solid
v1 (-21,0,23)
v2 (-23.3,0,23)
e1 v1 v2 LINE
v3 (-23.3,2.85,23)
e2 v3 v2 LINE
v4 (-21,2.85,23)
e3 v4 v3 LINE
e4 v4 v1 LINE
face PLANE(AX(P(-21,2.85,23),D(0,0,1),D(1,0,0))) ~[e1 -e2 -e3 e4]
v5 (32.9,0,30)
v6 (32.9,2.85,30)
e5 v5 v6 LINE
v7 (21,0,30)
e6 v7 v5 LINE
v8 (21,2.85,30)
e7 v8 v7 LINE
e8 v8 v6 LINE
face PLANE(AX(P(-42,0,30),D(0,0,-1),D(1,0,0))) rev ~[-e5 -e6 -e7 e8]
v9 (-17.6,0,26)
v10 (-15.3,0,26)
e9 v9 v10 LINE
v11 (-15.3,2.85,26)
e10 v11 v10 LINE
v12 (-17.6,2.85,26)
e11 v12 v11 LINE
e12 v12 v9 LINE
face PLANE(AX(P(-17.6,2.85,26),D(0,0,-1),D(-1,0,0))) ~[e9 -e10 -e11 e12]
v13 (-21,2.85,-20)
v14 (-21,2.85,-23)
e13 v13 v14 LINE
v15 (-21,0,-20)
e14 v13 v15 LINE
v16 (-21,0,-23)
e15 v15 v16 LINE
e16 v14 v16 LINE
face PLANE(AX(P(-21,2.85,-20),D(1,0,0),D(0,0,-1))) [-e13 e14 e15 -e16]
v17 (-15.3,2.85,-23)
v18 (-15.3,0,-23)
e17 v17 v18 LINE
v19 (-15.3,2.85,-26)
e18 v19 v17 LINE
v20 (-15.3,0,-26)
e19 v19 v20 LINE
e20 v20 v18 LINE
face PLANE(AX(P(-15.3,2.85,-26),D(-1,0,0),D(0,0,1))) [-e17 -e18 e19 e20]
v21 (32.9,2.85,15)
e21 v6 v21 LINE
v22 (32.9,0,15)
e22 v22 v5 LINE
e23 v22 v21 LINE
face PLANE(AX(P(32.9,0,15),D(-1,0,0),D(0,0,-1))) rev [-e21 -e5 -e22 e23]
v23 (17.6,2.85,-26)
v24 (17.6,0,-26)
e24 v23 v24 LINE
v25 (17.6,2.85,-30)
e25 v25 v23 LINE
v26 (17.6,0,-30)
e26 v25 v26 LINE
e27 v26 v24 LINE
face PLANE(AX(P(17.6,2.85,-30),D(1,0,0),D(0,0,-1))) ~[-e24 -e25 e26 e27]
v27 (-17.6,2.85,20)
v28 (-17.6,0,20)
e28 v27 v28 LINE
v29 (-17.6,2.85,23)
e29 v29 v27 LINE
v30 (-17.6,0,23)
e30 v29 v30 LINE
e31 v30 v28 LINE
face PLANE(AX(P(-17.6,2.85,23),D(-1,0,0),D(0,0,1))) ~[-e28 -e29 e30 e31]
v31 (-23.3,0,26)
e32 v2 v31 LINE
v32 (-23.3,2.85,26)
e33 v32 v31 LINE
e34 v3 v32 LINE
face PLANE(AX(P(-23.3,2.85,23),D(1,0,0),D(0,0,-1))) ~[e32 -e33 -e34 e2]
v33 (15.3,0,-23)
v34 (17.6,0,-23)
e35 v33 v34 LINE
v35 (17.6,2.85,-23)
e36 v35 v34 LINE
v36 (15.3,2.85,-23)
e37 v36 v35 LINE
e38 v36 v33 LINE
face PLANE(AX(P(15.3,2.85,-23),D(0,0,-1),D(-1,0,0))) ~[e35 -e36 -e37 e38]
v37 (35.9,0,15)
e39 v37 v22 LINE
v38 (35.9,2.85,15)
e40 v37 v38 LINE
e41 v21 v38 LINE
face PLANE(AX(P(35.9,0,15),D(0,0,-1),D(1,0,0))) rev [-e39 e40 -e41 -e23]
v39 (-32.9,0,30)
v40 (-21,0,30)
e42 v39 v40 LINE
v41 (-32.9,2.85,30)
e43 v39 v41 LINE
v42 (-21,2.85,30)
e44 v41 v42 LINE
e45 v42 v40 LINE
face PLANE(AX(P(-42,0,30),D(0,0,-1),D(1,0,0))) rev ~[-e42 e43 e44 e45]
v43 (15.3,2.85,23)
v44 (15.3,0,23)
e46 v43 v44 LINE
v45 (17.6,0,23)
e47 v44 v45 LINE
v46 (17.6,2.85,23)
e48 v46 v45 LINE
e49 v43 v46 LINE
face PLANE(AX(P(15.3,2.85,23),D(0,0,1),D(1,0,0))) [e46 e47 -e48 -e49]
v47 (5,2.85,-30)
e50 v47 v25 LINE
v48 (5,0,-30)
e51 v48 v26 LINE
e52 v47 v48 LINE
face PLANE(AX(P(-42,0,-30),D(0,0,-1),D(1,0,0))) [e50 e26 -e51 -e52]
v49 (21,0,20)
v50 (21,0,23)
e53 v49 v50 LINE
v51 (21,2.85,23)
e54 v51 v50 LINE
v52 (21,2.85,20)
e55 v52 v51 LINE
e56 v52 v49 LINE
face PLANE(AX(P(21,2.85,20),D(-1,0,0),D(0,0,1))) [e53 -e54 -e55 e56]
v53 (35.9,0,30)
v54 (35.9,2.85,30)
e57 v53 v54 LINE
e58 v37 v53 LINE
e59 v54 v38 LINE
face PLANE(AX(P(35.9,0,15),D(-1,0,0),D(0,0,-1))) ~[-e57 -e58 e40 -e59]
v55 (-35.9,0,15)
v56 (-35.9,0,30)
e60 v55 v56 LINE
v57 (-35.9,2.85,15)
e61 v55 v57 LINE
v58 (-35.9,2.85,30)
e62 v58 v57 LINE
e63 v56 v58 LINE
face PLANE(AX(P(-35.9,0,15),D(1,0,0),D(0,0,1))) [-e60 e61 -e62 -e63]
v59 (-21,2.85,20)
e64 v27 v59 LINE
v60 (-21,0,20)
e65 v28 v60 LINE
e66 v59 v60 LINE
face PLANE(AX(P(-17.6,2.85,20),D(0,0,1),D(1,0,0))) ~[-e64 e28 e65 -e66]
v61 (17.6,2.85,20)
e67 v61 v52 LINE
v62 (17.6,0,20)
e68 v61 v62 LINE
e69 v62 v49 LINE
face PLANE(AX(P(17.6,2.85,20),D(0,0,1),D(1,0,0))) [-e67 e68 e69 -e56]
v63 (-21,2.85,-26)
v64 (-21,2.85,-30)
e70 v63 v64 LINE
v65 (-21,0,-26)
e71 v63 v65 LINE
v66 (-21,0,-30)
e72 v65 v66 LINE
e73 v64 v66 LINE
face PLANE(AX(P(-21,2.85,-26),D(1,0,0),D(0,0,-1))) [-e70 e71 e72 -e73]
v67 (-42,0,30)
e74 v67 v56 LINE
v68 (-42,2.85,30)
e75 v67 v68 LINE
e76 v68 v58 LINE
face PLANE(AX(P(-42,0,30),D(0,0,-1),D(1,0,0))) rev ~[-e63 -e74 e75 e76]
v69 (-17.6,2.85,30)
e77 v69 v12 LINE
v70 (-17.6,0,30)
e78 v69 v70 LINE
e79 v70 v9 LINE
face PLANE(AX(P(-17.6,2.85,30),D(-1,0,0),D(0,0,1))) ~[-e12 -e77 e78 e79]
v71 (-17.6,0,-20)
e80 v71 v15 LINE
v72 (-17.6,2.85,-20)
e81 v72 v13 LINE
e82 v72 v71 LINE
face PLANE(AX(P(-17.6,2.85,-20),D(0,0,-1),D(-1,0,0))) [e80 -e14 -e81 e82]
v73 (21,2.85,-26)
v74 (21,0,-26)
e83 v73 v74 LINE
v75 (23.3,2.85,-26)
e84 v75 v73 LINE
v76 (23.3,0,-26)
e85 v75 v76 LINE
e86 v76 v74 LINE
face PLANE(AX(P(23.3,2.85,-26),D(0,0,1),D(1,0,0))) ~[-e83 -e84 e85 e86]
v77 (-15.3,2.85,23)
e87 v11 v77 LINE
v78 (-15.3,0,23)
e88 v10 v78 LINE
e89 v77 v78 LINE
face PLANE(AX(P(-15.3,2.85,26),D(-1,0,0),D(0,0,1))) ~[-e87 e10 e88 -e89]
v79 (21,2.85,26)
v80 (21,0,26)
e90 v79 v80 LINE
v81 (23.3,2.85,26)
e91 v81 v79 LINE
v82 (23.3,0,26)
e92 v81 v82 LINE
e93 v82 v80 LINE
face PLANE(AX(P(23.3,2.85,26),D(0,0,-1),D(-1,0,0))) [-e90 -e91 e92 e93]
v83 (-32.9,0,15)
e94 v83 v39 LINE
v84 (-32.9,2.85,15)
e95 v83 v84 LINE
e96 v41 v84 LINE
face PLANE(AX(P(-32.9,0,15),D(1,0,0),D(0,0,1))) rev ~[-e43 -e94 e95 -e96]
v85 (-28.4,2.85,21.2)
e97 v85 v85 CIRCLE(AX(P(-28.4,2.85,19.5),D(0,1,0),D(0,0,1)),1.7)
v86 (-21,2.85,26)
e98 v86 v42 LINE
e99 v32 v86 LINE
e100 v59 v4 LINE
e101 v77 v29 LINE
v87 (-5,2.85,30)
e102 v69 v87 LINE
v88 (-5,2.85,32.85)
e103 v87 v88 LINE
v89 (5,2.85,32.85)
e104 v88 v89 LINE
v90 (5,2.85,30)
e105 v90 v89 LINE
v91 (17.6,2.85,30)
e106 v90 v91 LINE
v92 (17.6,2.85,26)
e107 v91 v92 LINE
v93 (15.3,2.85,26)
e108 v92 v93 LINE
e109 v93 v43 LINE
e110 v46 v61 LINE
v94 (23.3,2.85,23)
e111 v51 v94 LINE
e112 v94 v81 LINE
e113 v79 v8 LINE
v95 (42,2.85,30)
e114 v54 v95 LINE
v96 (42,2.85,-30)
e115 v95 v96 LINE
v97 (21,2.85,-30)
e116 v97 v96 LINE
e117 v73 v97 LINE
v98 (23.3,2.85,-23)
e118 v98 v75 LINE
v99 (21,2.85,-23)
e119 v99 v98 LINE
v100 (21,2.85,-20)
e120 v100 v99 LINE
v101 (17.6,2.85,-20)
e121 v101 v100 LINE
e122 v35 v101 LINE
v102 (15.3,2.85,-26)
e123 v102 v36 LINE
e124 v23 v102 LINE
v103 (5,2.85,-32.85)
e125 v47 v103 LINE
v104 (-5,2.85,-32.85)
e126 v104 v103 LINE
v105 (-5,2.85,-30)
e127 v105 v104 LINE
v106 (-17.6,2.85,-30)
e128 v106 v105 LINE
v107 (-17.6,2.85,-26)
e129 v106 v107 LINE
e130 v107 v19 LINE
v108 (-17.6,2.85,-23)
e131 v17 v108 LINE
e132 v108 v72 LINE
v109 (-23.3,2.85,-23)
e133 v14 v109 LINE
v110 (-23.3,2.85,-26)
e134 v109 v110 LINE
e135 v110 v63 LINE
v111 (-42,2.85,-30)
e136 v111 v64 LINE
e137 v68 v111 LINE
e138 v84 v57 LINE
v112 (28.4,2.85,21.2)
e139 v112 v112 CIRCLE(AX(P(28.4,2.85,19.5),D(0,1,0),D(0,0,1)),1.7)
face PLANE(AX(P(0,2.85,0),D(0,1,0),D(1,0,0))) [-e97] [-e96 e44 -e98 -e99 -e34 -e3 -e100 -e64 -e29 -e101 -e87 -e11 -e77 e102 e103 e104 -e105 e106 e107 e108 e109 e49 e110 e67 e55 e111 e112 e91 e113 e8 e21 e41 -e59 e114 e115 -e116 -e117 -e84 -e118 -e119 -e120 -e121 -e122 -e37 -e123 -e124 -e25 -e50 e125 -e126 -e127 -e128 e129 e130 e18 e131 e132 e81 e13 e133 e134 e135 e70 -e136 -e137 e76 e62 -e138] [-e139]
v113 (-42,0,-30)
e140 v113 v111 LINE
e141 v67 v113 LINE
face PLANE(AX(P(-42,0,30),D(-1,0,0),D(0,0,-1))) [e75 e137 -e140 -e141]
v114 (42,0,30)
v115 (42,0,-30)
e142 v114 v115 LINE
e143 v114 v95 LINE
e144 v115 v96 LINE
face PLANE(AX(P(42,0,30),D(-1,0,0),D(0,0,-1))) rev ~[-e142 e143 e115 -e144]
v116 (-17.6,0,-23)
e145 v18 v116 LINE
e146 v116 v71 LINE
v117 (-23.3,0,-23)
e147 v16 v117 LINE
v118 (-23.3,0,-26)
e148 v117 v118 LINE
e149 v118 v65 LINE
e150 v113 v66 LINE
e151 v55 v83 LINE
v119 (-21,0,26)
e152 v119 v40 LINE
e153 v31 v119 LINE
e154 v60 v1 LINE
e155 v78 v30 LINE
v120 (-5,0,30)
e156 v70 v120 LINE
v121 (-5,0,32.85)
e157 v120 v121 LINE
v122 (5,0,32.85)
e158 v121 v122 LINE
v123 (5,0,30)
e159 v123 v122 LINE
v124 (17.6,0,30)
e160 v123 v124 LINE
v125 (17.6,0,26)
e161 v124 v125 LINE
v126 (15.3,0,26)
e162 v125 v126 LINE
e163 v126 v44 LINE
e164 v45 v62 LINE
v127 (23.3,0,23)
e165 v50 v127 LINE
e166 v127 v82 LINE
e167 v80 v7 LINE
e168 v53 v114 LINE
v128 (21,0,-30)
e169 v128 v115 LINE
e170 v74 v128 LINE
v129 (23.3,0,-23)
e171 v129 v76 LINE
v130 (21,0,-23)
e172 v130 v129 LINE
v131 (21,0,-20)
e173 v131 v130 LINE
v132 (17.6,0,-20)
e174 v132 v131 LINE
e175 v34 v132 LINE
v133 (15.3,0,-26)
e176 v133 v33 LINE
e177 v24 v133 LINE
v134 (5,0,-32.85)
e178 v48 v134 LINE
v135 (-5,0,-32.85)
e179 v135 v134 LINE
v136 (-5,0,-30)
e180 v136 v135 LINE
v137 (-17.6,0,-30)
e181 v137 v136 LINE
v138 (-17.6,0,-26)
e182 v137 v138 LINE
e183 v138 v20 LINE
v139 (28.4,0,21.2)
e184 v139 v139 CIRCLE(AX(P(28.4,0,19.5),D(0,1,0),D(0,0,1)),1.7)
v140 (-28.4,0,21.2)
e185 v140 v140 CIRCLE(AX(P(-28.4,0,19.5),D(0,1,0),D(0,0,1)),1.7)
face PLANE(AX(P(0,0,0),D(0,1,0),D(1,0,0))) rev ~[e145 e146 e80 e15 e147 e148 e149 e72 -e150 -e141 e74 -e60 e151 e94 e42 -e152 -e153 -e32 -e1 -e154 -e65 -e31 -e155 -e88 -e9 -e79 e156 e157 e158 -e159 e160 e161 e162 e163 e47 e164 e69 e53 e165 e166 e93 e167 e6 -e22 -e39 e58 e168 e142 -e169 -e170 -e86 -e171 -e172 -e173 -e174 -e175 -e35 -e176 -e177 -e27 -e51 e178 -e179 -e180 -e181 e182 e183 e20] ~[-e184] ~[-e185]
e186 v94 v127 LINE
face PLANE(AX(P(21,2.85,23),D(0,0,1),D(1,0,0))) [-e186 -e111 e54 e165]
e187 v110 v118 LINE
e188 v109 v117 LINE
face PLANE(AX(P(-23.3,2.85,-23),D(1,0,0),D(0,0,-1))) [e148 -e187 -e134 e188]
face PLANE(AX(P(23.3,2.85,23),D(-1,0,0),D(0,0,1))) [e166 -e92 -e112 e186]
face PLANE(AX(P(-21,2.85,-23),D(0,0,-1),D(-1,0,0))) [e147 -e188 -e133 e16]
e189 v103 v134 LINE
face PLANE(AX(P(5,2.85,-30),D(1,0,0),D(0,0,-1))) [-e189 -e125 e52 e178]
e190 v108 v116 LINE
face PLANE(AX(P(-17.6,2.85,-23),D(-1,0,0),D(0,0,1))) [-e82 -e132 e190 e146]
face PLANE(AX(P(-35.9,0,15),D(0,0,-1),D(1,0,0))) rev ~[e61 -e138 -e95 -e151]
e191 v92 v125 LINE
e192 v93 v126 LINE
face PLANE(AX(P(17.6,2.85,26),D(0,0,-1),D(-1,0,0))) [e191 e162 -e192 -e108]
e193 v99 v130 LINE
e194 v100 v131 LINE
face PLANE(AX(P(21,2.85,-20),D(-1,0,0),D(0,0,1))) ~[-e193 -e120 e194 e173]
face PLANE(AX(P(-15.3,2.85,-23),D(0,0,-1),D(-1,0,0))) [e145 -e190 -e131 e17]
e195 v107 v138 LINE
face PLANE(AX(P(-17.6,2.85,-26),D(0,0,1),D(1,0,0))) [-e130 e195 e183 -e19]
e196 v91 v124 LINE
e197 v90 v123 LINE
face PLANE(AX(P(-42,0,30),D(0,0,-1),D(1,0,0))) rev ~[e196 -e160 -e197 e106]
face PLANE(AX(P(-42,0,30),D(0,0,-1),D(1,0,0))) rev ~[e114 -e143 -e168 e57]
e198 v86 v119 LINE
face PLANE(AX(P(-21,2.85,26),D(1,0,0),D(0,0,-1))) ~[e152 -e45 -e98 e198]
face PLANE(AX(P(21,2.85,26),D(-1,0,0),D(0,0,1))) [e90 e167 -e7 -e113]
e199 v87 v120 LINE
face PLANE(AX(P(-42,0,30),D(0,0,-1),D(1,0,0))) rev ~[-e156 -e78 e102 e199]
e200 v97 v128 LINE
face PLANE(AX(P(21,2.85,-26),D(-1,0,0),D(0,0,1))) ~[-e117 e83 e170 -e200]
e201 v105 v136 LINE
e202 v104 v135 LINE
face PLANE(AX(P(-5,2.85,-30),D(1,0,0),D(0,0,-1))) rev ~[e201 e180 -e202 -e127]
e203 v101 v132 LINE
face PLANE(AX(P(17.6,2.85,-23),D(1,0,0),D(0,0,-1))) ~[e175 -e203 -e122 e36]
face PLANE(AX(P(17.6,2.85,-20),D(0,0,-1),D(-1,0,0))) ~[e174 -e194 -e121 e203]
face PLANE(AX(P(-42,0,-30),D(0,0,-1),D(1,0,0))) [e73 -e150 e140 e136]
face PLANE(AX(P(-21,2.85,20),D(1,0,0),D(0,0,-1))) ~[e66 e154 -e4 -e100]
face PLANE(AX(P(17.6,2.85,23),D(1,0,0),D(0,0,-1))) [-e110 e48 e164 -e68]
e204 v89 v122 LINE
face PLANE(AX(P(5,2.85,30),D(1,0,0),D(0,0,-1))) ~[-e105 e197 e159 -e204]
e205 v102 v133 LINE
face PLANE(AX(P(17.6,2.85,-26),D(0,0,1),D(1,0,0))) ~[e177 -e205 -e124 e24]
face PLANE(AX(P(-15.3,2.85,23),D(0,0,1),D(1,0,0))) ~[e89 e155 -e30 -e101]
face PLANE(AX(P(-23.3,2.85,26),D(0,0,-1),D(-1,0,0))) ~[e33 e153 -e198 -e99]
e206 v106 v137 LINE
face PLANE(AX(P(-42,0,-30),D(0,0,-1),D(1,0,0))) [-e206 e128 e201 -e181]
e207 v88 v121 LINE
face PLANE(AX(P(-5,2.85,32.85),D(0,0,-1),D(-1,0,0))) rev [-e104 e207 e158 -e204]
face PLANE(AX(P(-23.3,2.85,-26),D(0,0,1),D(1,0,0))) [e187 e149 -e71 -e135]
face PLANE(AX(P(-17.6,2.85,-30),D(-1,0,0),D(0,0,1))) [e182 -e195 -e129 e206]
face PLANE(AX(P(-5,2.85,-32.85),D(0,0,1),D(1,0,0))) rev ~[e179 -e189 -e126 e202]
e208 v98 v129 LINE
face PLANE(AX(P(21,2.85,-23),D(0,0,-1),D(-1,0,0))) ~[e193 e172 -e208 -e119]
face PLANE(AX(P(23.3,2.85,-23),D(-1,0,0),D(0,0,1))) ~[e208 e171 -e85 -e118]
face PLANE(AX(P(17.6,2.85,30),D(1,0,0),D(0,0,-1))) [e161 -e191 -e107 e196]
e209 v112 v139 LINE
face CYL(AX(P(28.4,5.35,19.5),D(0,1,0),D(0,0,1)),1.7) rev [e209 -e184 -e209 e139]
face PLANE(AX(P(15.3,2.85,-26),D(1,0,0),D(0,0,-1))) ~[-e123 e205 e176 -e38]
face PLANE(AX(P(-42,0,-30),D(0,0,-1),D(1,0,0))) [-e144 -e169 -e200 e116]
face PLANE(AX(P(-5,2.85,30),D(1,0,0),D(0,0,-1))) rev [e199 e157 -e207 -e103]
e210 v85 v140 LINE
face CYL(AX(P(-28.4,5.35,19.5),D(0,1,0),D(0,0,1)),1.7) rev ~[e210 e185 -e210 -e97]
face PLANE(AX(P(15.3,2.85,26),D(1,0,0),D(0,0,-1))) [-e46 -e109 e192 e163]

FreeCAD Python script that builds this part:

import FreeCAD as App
import Part
import Sketcher
from FreeCAD import Vector


def add_polygon(sketch, points):
    """Adds a closed chain of lines whose ends are joined by coincident constraints."""
    first, n = sketch.GeometryCount, len(points)
    for a, b in zip(points, points[1:] + points[:1]):
        sketch.addGeometry(Part.LineSegment(App.Vector(*a, 0), App.Vector(*b, 0)), False)
    for i in range(n):
        sketch.addConstraint(Sketcher.Constraint("Coincident", first + i, 2, first + (i + 1) % n, 1))

doc = App.newDocument("Part")
params = doc.addObject("Spreadsheet::Sheet", "Params")
for row, (alias, value) in enumerate([
    ("sketch1_width", "84 mm"),
    ("sketch1_height", "60 mm"),
    ("pad1_length", "2.85 mm"),
    ("sketch2_width", "3 mm"),
    ("sketch2_height", "15 mm"),
    ("sketch3_height", "3 mm"),
    ("sketch3_height2", "4 mm"),
    ("sketch3_width", "2.3 mm"),
    ("sketch3_width2", "3.4 mm"),
    ("sketch4_width", "10 mm"),
    ("sketch4_height", "2.85 mm"),
    ("pad2_length", "2.85 mm"),
    ("sketch5_height", "3 mm"),
    ("sketch5_height2", "4 mm"),
    ("sketch5_width", "2.3 mm"),
    ("sketch5_width2", "3.4 mm"),
    ("sketch6_diameter", "3.4 mm"),
    ("pocket4_length", "6 mm"),
], start=1):
    params.set(f"A{row}", alias)
    params.set(f"B{row}", "=" + value)
    params.setAlias(f"B{row}", alias)

body = doc.addObject("PartDesign::Body", "Body")

# Sketch on XZ plane
sketch1 = body.newObject("Sketcher::SketchObject", "Sketch")
sketch1.AttachmentSupport = (doc.getObject("XZ_Plane"), [""])
sketch1.MapMode = "FlatFace"
add_polygon(sketch1, [(-42, -30), (-42, 30), (42, 30), (42, -30)])  # lines 0-3
sketch1.addConstraint([
    Sketcher.Constraint("Vertical", 0),
    Sketcher.Constraint("Horizontal", 1),
    Sketcher.Constraint("Vertical", 2),
    Sketcher.Constraint("Horizontal", 3),
    Sketcher.Constraint("Symmetric", 0, 2, 2, 2, -1, 1),
    Sketcher.Constraint("DistanceX", 1, 1, 1, 2, 84.0),
    Sketcher.Constraint("DistanceY", 0, 1, 0, 2, 60.0),
])
sketch1.setExpression("Constraints[9]", "Params.sketch1_width")
sketch1.setExpression("Constraints[10]", "Params.sketch1_height")
pad1 = body.newObject("PartDesign::Pad", "Pad")
pad1.Profile = sketch1
pad1.setExpression("Length", "Params.pad1_length")
pad1.Reversed = True

# Sketch on XZ plane
sketch2 = body.newObject("Sketcher::SketchObject", "Sketch001")
sketch2.AttachmentSupport = (doc.getObject("XZ_Plane"), [""])
sketch2.MapMode = "FlatFace"
add_polygon(sketch2, [(-35.9, 30), (-35.9, 15), (-32.9, 15), (-32.9, 30)])  # lines 0-3
sketch2.addConstraint([
    Sketcher.Constraint("Vertical", 0),
    Sketcher.Constraint("Horizontal", 1),
    Sketcher.Constraint("Vertical", 2),
    Sketcher.Constraint("Horizontal", 3),
    Sketcher.Constraint("DistanceX", 1, 1, 1, 2, 3.0),
    Sketcher.Constraint("DistanceY", 0, 2, 0, 1, 15.0),
    Sketcher.Constraint("DistanceY", -1, 1, 0, 2, 15.0),
    Sketcher.Constraint("DistanceX", 0, 2, -1, 1, 35.9),
])
sketch2.setExpression("Constraints[8]", "Params.sketch2_width")
sketch2.setExpression("Constraints[9]", "Params.sketch2_height")
pocket1 = body.newObject("PartDesign::Pocket", "Pocket")
pocket1.Profile = sketch2
pocket1.Type = "ThroughAll"
doc.recompute()

mirrored = body.newObject("PartDesign::Mirrored", "Mirrored")
mirrored.Originals = [pocket1]
mirrored.MirrorPlane = (doc.getObject("YZ_Plane"), [""])
body.Tip = mirrored

# Sketch on XZ plane
sketch3 = body.newObject("Sketcher::SketchObject", "Sketch002")
sketch3.AttachmentSupport = (doc.getObject("XZ_Plane"), [""])
sketch3.MapMode = "FlatFace"
sketch3.AttachmentOffset = App.Placement(Vector(0, 0, -2.85), App.Rotation())
add_polygon(sketch3, [(-21, -26), (-23.3, -26), (-23.3, -23), (-21, -23), (-21, -20), (-17.6, -20), (-17.6, -23), (-15.3, -23), (-15.3, -26), (-17.6, -26), (-17.6, -30), (-21, -30)])  # lines 0-11
sketch3.addConstraint([
    Sketcher.Constraint("Horizontal", 0),
    Sketcher.Constraint("Vertical", 1),
    Sketcher.Constraint("Horizontal", 2),
    Sketcher.Constraint("Vertical", 3),
    Sketcher.Constraint("Horizontal", 4),
    Sketcher.Constraint("Vertical", 5),
    Sketcher.Constraint("Horizontal", 6),
    Sketcher.Constraint("Vertical", 7),
    Sketcher.Constraint("Horizontal", 8),
    Sketcher.Constraint("Vertical", 9),
    Sketcher.Constraint("Horizontal", 10),
    Sketcher.Constraint("Vertical", 11),
    Sketcher.Constraint("Horizontal", 2, 2, 5, 2),
    Sketcher.Constraint("Horizontal", 0, 2, 7, 2),
    Sketcher.Constraint("Vertical", 5, 2, 8, 2),
    Sketcher.Constraint("Vertical", 3, 2, 10, 2),
    Sketcher.Constraint("Equal", 2, 6),
    Sketcher.Constraint("Equal", 1, 3),
    Sketcher.Constraint("DistanceY", 1, 1, 1, 2, 3.0),
    Sketcher.Constraint("DistanceY", 9, 2, 9, 1, 4.0),
    Sketcher.Constraint("DistanceX", 0, 2, 0, 1, 2.3),
    Sketcher.Constraint("DistanceX", 4, 1, 4, 2, 3.4),
    Sketcher.Constraint("DistanceY", 0, 2, -1, 1, 26.0),
    Sketcher.Constraint("DistanceX", 2, 2, -1, 1, 21.0),
])
sketch3.setExpression("Constraints[30]", "Params.sketch3_height")
sketch3.setExpression("Constraints[31]", "Params.sketch3_height2")
sketch3.setExpression("Constraints[32]", "Params.sketch3_width")
sketch3.setExpression("Constraints[33]", "Params.sketch3_width2")
pocket2 = body.newObject("PartDesign::Pocket", "Pocket001")
pocket2.Profile = sketch3
pocket2.Type = "ThroughAll"
pocket2.Reversed = True
doc.recompute()

mirrored2 = body.newObject("PartDesign::Mirrored", "Mirrored001")
mirrored2.Originals = [pocket2]
mirrored2.MirrorPlane = (doc.getObject("YZ_Plane"), [""])
body.Tip = mirrored2

# Sketch on XZ plane
sketch4 = body.newObject("Sketcher::SketchObject", "Sketch003")
sketch4.AttachmentSupport = (doc.getObject("XZ_Plane"), [""])
sketch4.MapMode = "FlatFace"
sketch4.AttachmentOffset = App.Placement(Vector(0, 0, -2.85), App.Rotation())
add_polygon(sketch4, [(-5, -32.9), (-5, -30), (5, -30), (5, -32.9)])  # lines 0-3
sketch4.addConstraint([
    Sketcher.Constraint("Vertical", 0),
    Sketcher.Constraint("Horizontal", 1),
    Sketcher.Constraint("Vertical", 2),
    Sketcher.Constraint("Horizontal", 3),
    Sketcher.Constraint("DistanceX", 1, 1, 1, 2, 10.0),
    Sketcher.Constraint("DistanceX", 0, 2, -1, 1, 5.0),
    Sketcher.Constraint("DistanceY", 0, 2, -1, 1, 30.0),
    Sketcher.Constraint("DistanceY", 0, 1, 0, 2, 2.85),
])
sketch4.setExpression("Constraints[8]", "Params.sketch4_width")
sketch4.setExpression("Constraints[11]", "Params.sketch4_height")
pad2 = body.newObject("PartDesign::Pad", "Pad001")
pad2.Profile = sketch4
pad2.setExpression("Length", "Params.pad2_length")
doc.recompute()

mirrored3 = body.newObject("PartDesign::Mirrored", "Mirrored002")
mirrored3.Originals = [pocket2, pad2]
mirrored3.MirrorPlane = (doc.getObject("XY_Plane"), [""])
body.Tip = mirrored3

# Sketch on XZ plane
sketch5 = body.newObject("Sketcher::SketchObject", "Sketch004")
sketch5.AttachmentSupport = (doc.getObject("XZ_Plane"), [""])
sketch5.MapMode = "FlatFace"
sketch5.AttachmentOffset = App.Placement(Vector(0, 0, -2.85), App.Rotation())
add_polygon(sketch5, [(21, 26), (23.3, 26), (23.3, 23), (21, 23), (21, 20), (17.6, 20), (17.6, 23), (15.3, 23), (15.3, 26), (17.6, 26), (17.6, 30), (21, 30)])  # lines 0-11
sketch5.addConstraint([
    Sketcher.Constraint("Horizontal", 0),
    Sketcher.Constraint("Vertical", 1),
    Sketcher.Constraint("Horizontal", 2),
    Sketcher.Constraint("Vertical", 3),
    Sketcher.Constraint("Horizontal", 4),
    Sketcher.Constraint("Vertical", 5),
    Sketcher.Constraint("Horizontal", 6),
    Sketcher.Constraint("Vertical", 7),
    Sketcher.Constraint("Horizontal", 8),
    Sketcher.Constraint("Vertical", 9),
    Sketcher.Constraint("Horizontal", 10),
    Sketcher.Constraint("Vertical", 11),
    Sketcher.Constraint("Horizontal", 2, 2, 5, 2),
    Sketcher.Constraint("Horizontal", 0, 2, 7, 2),
    Sketcher.Constraint("Vertical", 5, 2, 8, 2),
    Sketcher.Constraint("Vertical", 3, 2, 10, 2),
    Sketcher.Constraint("Equal", 2, 6),
    Sketcher.Constraint("Equal", 1, 3),
    Sketcher.Constraint("DistanceY", 1, 2, 1, 1, 3.0),
    Sketcher.Constraint("DistanceY", 9, 1, 9, 2, 4.0),
    Sketcher.Constraint("DistanceX", 0, 1, 0, 2, 2.3),
    Sketcher.Constraint("DistanceX", 4, 2, 4, 1, 3.4),
    Sketcher.Constraint("DistanceY", -1, 1, 0, 2, 26.0),
    Sketcher.Constraint("DistanceX", -1, 1, 2, 2, 21.0),
])
sketch5.setExpression("Constraints[30]", "Params.sketch5_height")
sketch5.setExpression("Constraints[31]", "Params.sketch5_height2")
sketch5.setExpression("Constraints[32]", "Params.sketch5_width")
sketch5.setExpression("Constraints[33]", "Params.sketch5_width2")
pocket3 = body.newObject("PartDesign::Pocket", "Pocket002")
pocket3.Profile = sketch5
pocket3.Type = "ThroughAll"
pocket3.Reversed = True

# Sketch on XZ plane
sketch6 = body.newObject("Sketcher::SketchObject", "Sketch005")
sketch6.AttachmentSupport = (doc.getObject("XZ_Plane"), [""])
sketch6.MapMode = "FlatFace"
sketch6.AttachmentOffset = App.Placement(Vector(0, 0, -5.35), App.Rotation())
sketch6.addGeometry(Part.Circle(Vector(-28.4, 19.5, 0), Vector(0, 0, 1), 1.7), False)
sketch6.addConstraint([
    Sketcher.Constraint("Diameter", 0, 3.4),
    Sketcher.Constraint("DistanceX", 0, 3, -1, 1, 28.4),
    Sketcher.Constraint("DistanceY", -1, 1, 0, 3, 19.5),
])
sketch6.setExpression("Constraints[0]", "Params.sketch6_diameter")
pocket4 = body.newObject("PartDesign::Pocket", "Pocket003")
pocket4.Profile = sketch6
pocket4.setExpression("Length", "Params.pocket4_length")
pocket4.Reversed = True
doc.recompute()

mirrored4 = body.newObject("PartDesign::Mirrored", "Mirrored003")
mirrored4.Originals = [pocket4]
mirrored4.MirrorPlane = (doc.getObject("YZ_Plane"), [""])
body.Tip = mirrored4

doc.recompute()
